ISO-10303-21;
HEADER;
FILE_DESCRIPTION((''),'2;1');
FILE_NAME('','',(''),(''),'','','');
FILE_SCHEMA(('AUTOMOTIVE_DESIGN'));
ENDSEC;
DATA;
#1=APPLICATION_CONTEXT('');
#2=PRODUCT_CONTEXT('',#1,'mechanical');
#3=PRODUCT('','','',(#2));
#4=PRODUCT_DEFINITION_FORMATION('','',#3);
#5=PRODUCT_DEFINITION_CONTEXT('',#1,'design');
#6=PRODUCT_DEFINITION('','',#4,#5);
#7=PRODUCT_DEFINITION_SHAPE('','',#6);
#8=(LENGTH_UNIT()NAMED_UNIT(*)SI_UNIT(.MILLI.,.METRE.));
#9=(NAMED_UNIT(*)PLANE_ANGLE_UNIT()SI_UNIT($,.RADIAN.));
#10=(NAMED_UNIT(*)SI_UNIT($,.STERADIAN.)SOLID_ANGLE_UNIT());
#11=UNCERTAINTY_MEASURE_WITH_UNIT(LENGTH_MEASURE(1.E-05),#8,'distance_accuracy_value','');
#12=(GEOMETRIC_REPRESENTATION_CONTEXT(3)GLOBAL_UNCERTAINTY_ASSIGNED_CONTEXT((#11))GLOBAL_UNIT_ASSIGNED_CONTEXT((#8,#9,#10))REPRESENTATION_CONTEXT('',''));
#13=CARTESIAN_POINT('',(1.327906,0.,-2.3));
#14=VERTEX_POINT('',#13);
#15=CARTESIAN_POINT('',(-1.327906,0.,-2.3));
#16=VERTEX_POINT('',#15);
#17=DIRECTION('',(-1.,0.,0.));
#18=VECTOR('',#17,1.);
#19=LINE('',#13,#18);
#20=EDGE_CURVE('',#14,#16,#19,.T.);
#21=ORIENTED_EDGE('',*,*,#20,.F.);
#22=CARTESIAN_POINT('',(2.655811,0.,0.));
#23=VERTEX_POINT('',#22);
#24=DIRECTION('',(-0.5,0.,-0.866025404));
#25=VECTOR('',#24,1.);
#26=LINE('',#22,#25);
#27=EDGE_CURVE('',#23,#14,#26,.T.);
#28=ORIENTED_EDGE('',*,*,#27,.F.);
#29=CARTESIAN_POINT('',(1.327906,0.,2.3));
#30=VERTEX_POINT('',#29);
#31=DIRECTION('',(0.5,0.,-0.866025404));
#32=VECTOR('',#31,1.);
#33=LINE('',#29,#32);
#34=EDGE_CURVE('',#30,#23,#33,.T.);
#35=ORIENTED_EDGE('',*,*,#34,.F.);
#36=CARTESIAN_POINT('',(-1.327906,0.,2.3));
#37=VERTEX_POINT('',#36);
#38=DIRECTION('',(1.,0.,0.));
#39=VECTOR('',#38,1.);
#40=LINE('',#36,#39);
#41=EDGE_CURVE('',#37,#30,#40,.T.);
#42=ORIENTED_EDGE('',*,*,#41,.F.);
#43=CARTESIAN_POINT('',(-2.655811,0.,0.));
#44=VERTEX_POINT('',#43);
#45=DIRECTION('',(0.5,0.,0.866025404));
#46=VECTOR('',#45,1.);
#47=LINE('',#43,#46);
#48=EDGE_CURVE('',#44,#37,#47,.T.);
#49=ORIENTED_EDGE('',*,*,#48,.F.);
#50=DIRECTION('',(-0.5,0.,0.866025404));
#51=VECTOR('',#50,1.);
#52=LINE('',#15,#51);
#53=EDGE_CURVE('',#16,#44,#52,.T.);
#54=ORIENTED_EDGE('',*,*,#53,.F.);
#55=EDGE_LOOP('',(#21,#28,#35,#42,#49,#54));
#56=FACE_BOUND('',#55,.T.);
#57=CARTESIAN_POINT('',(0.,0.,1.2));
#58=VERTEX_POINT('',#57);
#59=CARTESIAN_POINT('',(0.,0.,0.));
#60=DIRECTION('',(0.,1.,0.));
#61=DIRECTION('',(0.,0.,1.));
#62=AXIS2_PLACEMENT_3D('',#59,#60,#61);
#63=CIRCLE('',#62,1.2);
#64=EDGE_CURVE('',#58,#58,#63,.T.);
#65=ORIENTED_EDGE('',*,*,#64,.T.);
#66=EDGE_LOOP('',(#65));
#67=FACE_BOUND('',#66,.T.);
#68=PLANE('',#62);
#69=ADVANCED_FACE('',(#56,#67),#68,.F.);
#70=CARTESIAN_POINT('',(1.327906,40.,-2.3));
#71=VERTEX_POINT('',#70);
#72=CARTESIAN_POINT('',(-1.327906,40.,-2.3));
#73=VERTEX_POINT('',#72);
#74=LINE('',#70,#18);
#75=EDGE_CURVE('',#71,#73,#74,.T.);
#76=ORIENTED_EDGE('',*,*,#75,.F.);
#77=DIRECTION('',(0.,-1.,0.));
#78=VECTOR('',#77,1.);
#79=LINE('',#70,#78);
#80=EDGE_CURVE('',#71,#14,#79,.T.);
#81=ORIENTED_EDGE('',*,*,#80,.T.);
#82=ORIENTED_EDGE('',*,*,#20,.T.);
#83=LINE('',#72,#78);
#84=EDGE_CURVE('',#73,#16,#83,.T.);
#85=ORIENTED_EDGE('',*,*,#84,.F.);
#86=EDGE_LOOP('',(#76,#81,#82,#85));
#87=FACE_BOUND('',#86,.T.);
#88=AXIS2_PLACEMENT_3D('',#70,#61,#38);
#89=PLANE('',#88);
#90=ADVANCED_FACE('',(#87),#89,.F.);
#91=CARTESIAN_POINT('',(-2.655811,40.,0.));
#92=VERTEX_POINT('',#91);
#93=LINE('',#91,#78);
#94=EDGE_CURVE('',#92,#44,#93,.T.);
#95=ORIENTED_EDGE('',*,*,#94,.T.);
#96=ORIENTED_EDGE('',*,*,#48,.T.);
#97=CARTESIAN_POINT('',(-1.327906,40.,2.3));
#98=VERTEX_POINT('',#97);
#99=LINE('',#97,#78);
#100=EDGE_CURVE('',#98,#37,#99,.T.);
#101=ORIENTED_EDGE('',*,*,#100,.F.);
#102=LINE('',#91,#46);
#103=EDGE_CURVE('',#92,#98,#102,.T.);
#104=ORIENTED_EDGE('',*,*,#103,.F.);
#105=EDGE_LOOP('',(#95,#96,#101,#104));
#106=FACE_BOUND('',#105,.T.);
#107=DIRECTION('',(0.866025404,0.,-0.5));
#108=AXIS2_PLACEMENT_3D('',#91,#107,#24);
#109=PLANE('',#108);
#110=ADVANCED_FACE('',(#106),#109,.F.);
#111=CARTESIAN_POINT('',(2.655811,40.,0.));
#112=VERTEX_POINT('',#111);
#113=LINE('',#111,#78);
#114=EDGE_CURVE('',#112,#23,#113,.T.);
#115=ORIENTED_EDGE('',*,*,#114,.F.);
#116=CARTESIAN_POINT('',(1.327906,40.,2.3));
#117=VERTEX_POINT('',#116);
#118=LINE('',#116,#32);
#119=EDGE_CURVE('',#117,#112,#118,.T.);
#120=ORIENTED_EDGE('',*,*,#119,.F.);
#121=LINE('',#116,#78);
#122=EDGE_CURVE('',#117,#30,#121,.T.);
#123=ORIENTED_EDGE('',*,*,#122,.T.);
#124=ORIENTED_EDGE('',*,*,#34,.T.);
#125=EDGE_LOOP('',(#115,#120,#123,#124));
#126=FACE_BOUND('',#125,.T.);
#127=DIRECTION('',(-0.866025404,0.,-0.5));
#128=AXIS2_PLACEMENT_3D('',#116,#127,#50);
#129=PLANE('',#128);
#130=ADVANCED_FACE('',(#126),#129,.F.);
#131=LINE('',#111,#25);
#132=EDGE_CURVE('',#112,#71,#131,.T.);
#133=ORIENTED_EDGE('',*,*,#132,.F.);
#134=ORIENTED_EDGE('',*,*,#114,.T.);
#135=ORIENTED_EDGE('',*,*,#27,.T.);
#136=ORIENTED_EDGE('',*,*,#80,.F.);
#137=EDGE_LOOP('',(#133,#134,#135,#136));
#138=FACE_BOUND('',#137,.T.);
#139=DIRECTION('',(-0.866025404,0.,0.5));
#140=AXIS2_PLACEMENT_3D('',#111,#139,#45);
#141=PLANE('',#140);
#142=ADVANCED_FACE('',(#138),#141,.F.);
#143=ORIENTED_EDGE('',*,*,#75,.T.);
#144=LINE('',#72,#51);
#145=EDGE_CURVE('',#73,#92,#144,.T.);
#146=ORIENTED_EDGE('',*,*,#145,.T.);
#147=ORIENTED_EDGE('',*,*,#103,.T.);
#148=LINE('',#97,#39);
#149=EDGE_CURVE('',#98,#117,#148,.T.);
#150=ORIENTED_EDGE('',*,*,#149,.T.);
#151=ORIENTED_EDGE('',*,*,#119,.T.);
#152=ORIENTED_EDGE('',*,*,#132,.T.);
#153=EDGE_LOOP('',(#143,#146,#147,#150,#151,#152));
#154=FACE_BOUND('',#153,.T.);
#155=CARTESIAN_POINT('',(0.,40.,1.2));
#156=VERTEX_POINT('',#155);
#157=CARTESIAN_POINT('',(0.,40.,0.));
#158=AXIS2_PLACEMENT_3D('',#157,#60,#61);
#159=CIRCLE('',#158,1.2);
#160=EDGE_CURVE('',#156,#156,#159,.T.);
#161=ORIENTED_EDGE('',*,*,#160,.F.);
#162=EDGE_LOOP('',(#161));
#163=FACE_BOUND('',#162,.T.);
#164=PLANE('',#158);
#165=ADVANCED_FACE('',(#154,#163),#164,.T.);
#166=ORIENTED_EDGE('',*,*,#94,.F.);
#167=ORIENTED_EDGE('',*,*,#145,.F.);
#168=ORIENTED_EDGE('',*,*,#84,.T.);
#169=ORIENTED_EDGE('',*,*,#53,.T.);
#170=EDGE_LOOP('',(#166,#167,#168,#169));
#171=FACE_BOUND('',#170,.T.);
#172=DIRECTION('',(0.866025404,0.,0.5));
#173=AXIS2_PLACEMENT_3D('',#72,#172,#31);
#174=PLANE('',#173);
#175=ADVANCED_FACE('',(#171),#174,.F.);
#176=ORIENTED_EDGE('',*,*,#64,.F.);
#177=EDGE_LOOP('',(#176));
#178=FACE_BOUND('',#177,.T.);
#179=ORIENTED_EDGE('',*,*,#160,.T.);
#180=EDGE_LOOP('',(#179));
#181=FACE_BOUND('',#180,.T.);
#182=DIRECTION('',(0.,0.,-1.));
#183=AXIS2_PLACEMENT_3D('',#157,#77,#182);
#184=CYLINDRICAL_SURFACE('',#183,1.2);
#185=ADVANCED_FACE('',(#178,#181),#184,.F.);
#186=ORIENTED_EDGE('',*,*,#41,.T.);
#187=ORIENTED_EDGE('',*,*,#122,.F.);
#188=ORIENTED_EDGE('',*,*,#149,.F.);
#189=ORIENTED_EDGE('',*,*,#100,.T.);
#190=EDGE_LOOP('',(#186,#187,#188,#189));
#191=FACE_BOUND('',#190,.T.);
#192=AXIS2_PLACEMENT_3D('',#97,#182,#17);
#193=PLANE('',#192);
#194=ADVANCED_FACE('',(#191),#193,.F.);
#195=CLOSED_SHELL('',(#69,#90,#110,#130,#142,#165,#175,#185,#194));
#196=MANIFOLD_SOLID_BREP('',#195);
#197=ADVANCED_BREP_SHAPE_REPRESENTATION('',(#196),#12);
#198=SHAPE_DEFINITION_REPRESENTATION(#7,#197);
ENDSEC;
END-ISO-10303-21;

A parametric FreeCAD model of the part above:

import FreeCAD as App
import Part
import Sketcher
from FreeCAD import Vector
Q = App.Units.Quantity

doc = App.newDocument("Part")
params = doc.addObject("Spreadsheet::Sheet", "Params")
for row, (alias, value) in enumerate([
    ("sketch1_diameter", "2.4 mm"),
    ("pad1_length", "40 mm"),
], start=1):
    params.set(f"A{row}", alias)
    params.set(f"B{row}", "=" + value)
    params.setAlias(f"B{row}", alias)

body = doc.addObject("PartDesign::Body", "Body")

# Sketch on XZ plane
sketch1 = body.newObject("Sketcher::SketchObject", "Sketch")
sketch1.AttachmentSupport = (doc.getObject("XZ_Plane"), [""])
sketch1.MapMode = "FlatFace"
sketch1.addGeometry([
    Part.LineSegment(Vector(2.7, 0, 0), Vector(1.3, -2.3, 0)),  # 0
    Part.LineSegment(Vector(1.3, -2.3, 0), Vector(-1.3, -2.3, 0)),  # 1
    Part.LineSegment(Vector(-1.3, -2.3, 0), Vector(-2.7, 0, 0)),  # 2
    Part.LineSegment(Vector(-2.7, 0, 0), Vector(-1.3, 2.3, 0)),  # 3
    Part.LineSegment(Vector(-1.3, 2.3, 0), Vector(1.3, 2.3, 0)),  # 4
    Part.LineSegment(Vector(1.3, 2.3, 0), Vector(2.7, 0, 0)),  # 5
    Part.Circle(Vector(0, 0, 0), Vector(0, 0, 1), 1.2),  # 6
], False)
sketch1.addConstraint([
    Sketcher.Constraint("Coincident", 0, 2, 1, 1),
    Sketcher.Constraint("Coincident", 1, 2, 2, 1),
    Sketcher.Constraint("Coincident", 2, 2, 3, 1),
    Sketcher.Constraint("Coincident", 3, 2, 4, 1),
    Sketcher.Constraint("Coincident", 4, 2, 5, 1),
    Sketcher.Constraint("Coincident", 5, 2, 0, 1),
    Sketcher.Constraint("Horizontal", 1),
    Sketcher.Constraint("Horizontal", 4),
    Sketcher.Constraint("Coincident", 6, 3, -1, 1),
    Sketcher.Constraint("Symmetric", 0, 2, 3, 2, -1, 1),
    Sketcher.Constraint("Symmetric", 2, 2, 5, 2, -1, 1),
    Sketcher.Constraint("PointOnObject", 2, 2, -1),
    Sketcher.Constraint("Parallel", 2, 5),
    Sketcher.Constraint("Vertical", 1, 2, 3, 2),
    Sketcher.Constraint("Diameter", 6, Q("2.4 mm")),
    Sketcher.Constraint("Angle", 0, Q("-120 deg")),
    Sketcher.Constraint("DistanceY", 0, 2, -1, 1, Q("2.3 mm")),
    Sketcher.Constraint("DistanceX", 1, 2, 1, 1, Q("2.655811 mm")),
])
sketch1.setExpression("Constraints[14]", "Params.sketch1_diameter")
pad1 = body.newObject("PartDesign::Pad", "Pad")
pad1.Profile = sketch1
pad1.setExpression("Length", "Params.pad1_length")
pad1.Reversed = True

doc.recompute()
